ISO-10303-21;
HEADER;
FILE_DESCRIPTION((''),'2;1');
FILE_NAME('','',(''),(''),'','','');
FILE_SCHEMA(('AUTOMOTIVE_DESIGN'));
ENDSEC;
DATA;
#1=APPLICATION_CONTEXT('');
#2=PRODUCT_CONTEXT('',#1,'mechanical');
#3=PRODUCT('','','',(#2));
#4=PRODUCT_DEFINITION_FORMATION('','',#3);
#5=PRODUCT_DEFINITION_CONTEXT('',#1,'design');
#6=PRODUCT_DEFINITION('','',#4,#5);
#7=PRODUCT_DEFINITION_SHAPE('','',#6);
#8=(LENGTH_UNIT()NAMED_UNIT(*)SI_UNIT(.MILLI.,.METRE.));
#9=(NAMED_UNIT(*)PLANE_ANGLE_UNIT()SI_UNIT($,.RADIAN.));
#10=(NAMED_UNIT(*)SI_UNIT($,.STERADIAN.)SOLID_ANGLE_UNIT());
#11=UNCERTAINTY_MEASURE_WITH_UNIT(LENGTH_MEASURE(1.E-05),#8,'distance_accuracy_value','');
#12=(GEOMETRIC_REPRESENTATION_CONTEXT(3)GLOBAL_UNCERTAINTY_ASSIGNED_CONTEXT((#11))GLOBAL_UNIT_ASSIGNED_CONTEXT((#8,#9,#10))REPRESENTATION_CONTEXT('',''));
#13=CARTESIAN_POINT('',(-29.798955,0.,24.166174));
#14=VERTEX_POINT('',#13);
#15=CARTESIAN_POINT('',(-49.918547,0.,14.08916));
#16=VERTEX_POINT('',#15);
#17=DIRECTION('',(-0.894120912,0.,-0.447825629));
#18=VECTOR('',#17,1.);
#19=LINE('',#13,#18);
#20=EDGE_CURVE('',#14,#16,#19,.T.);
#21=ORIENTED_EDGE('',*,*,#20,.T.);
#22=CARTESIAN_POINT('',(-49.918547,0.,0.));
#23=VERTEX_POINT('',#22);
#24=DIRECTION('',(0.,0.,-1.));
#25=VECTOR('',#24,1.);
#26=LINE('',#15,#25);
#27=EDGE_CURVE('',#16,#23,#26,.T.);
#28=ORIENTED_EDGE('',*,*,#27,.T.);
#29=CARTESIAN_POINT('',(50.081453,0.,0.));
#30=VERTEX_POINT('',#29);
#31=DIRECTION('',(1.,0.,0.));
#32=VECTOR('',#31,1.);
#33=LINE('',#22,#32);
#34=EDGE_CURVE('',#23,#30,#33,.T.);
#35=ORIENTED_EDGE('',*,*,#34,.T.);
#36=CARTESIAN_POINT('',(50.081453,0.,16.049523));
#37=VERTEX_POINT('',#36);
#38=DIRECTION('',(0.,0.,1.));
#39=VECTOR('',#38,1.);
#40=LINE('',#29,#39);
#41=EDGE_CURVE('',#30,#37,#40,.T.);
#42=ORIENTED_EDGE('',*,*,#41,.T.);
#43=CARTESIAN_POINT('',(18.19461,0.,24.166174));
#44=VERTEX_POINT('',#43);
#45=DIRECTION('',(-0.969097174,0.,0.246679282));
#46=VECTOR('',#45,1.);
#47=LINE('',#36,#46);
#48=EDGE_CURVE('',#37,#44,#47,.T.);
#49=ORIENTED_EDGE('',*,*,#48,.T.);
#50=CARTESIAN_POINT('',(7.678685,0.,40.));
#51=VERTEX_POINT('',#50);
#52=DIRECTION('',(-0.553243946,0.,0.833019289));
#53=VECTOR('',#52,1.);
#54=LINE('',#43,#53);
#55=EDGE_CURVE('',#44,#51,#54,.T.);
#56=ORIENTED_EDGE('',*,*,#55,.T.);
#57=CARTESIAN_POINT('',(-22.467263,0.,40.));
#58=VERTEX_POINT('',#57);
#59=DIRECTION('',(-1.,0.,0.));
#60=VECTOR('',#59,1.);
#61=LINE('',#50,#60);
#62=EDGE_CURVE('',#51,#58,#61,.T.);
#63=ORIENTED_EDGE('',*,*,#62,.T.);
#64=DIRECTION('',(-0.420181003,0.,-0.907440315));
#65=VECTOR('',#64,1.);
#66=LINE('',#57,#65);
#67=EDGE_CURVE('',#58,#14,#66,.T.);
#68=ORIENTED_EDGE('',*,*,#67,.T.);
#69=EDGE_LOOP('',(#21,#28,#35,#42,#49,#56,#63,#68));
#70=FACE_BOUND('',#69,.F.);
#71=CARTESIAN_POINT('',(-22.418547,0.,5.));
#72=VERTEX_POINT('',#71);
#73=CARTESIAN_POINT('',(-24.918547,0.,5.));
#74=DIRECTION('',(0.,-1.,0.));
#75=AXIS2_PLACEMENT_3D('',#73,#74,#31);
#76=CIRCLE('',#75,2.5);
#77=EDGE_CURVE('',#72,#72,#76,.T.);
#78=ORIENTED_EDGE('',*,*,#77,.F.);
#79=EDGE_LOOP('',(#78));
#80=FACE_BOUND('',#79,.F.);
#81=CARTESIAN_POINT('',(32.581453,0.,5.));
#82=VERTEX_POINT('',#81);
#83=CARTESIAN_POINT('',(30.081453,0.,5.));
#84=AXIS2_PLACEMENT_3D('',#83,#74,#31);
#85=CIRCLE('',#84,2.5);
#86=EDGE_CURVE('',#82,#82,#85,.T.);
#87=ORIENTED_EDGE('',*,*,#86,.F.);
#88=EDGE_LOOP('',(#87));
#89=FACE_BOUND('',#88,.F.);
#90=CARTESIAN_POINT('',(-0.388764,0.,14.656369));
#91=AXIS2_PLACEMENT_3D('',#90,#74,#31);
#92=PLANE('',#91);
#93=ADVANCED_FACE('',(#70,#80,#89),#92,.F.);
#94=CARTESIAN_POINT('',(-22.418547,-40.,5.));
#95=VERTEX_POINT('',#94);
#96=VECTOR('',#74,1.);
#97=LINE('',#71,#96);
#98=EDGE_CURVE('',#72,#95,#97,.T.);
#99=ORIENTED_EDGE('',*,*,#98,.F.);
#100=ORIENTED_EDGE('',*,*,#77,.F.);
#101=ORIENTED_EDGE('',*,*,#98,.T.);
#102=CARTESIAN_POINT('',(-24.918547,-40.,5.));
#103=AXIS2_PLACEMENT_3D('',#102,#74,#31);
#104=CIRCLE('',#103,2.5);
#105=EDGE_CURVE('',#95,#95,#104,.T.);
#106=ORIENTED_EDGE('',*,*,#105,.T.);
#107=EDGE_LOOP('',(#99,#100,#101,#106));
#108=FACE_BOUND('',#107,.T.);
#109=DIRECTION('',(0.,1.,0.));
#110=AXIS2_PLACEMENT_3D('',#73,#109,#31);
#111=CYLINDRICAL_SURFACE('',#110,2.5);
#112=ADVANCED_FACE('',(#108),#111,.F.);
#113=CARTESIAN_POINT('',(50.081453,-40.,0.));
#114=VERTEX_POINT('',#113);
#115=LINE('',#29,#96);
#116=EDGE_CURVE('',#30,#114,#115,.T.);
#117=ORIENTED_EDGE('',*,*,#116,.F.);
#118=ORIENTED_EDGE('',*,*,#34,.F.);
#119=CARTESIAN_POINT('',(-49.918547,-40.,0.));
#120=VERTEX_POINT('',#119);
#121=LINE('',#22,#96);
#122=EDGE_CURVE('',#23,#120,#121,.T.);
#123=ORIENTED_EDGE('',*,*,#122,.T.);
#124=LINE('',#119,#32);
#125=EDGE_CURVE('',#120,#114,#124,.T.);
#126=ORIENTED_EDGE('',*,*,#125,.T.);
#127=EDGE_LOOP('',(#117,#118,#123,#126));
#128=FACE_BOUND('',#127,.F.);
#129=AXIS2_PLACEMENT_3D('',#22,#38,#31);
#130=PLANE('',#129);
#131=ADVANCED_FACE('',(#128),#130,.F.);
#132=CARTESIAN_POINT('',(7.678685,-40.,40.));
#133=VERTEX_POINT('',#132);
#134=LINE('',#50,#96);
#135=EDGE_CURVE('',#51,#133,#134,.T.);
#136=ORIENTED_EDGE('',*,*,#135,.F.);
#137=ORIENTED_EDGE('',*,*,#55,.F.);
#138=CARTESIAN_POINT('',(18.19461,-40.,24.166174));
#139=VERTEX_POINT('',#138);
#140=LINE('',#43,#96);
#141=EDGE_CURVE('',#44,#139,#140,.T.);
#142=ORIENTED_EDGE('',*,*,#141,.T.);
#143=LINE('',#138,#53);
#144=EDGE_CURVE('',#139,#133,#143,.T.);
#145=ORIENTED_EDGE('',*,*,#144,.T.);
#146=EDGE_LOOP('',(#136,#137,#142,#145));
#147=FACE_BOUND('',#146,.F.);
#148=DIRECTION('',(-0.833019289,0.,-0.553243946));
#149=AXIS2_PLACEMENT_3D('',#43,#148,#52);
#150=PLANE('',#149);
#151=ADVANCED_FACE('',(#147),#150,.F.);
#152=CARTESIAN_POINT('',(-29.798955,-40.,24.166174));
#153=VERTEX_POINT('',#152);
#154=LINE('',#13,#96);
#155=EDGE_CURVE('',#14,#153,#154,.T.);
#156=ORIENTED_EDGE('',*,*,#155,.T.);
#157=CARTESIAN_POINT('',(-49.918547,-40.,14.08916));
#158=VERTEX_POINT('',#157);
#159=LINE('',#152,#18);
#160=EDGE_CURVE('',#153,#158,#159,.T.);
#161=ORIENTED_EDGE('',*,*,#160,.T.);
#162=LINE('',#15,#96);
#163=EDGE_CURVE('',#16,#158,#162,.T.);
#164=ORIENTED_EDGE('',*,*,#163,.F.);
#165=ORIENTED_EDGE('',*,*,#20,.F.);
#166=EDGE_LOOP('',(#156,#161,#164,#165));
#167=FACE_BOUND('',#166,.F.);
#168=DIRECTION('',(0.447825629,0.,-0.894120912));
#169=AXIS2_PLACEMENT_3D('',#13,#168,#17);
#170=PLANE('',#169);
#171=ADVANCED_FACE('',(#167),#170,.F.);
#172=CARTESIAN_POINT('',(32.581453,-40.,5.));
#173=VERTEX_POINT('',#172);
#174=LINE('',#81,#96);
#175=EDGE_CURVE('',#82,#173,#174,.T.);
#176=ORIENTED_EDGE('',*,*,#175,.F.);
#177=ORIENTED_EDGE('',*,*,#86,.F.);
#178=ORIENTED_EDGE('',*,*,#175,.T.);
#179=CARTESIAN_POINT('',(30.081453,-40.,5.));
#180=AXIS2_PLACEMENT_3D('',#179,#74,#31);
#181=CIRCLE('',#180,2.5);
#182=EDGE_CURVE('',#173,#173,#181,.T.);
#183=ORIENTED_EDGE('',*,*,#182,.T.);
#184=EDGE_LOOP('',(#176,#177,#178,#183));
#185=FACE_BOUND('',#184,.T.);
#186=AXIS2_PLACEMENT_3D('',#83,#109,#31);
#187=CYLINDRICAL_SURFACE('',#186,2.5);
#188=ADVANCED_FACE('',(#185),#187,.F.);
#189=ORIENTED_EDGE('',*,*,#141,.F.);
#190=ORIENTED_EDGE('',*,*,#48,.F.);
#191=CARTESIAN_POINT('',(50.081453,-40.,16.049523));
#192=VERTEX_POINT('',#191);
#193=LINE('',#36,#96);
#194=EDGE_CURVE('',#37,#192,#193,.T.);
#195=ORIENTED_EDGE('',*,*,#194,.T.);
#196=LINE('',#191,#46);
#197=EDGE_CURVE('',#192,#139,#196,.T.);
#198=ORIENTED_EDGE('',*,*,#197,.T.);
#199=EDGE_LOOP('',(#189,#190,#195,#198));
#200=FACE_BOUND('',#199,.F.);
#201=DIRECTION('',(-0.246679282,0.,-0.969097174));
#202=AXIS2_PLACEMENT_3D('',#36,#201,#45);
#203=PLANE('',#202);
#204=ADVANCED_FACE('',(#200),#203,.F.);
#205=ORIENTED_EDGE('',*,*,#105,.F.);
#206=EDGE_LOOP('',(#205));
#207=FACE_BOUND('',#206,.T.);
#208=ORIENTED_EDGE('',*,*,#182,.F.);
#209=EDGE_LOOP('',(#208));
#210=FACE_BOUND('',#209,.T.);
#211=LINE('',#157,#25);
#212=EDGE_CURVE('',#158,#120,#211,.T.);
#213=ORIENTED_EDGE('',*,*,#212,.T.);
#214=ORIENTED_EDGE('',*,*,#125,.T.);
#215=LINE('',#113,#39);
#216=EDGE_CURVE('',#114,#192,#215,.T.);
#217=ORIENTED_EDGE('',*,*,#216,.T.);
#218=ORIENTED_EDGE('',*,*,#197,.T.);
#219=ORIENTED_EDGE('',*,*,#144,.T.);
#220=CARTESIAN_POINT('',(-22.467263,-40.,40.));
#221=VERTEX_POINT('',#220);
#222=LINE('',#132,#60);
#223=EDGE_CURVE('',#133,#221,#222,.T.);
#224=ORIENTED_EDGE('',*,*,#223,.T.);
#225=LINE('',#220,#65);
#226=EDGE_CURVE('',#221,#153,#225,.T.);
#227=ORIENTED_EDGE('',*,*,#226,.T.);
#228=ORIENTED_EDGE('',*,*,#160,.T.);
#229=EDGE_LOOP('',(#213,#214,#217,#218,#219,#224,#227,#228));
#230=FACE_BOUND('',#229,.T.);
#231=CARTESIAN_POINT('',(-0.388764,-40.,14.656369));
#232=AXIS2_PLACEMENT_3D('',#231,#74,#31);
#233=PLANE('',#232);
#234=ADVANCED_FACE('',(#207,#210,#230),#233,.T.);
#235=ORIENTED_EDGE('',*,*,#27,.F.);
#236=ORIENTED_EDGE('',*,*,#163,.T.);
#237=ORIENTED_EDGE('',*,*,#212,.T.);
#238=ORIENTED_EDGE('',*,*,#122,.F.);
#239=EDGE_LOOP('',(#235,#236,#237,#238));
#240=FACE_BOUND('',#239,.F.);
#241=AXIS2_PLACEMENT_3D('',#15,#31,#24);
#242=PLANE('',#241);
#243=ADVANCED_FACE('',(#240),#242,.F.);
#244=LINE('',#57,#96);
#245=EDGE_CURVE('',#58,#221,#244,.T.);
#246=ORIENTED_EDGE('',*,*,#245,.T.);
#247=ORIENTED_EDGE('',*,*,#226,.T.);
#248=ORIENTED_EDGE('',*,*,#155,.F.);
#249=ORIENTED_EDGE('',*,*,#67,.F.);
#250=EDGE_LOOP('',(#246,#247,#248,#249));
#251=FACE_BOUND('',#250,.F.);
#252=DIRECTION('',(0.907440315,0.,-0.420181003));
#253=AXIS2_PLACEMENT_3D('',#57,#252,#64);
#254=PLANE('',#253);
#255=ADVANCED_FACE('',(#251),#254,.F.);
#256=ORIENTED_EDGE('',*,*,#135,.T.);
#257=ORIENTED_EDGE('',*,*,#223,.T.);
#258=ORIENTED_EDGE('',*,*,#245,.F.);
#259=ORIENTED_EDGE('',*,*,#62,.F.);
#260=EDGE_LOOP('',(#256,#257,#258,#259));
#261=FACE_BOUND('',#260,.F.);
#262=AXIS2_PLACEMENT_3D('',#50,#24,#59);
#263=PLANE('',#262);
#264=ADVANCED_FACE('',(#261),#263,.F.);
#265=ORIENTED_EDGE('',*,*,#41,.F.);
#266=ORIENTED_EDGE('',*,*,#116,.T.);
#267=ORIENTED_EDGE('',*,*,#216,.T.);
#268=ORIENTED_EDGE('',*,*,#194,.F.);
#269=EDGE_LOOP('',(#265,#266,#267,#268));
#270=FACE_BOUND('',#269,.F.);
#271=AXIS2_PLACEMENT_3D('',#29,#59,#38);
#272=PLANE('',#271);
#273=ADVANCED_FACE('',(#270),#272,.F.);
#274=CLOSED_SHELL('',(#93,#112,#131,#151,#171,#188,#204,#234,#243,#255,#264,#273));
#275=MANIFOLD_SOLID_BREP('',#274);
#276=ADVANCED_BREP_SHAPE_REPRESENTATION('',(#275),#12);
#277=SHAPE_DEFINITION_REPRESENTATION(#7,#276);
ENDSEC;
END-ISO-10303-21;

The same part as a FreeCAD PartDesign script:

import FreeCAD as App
import Part
import Sketcher
Q = App.Units.Quantity


def add_polygon(sketch, points):
    """Adds a closed chain of lines whose ends are joined by coincident constraints."""
    first, n = sketch.GeometryCount, len(points)
    for a, b in zip(points, points[1:] + points[:1]):
        sketch.addGeometry(Part.LineSegment(App.Vector(*a, 0), App.Vector(*b, 0)), False)
    for i in range(n):
        sketch.addConstraint(Sketcher.Constraint("Coincident", first + i, 2, first + (i + 1) % n, 1))

doc = App.newDocument("Part")
body = doc.addObject("PartDesign::Body", "Body")

# Sketch on XZ plane
sketch1 = doc.addObject("Sketcher::SketchObject", "Sketch")
body.addObject(sketch1)
sketch1.AttachmentSupport = (doc.XZ_Plane, [""])
sketch1.MapMode = "FlatFace"
add_polygon(sketch1, [(-49.9, 14.1), (-49.9, 0), (50.1, 0), (50.1, 16), (18.2, 24.2), (7.7, 40), (-22.5, 40), (-29.8, 24.2)])  # lines 0-7
sketch1.addGeometry(Part.Circle(App.Vector(-24.9, 5, 0), App.Vector(0, 0, 1), 2.5), False)  # 8
sketch1.addGeometry(Part.Circle(App.Vector(30.1, 5, 0), App.Vector(0, 0, 1), 2.5), False)  # 9
sketch1.addConstraint([
    Sketcher.Constraint("Vertical", 0),
    Sketcher.Constraint("Horizontal", 1),
    Sketcher.Constraint("Vertical", 2),
    Sketcher.Constraint("Horizontal", 5),
    Sketcher.Constraint("Equal", 8, 9),
    Sketcher.Constraint("PointOnObject", 0, 2, -1),
    Sketcher.Constraint("Horizontal", 8, 3, 9, 3),
    Sketcher.Constraint("Horizontal", 3, 2, 6, 2),
    Sketcher.Constraint("Diameter", 8, Q("5 mm")),
    Sketcher.Constraint("DistanceX", 1, 1, 1, 2, Q("100 mm")),
    Sketcher.Constraint("DistanceY", -1, 1, 8, 3, Q("5 mm")),
    Sketcher.Constraint("DistanceY", -1, 1, 4, 2, Q("40 mm")),
    Sketcher.Constraint("DistanceX", 8, 3, 9, 3, Q("55 mm")),
    Sketcher.Constraint("DistanceX", 0, 2, 8, 3, Q("25 mm")),
    Sketcher.Constraint("DistanceY", 0, 2, 0, 1, Q("14.08916 mm")),
    Sketcher.Constraint("Distance", 3, Q("32.903659 mm")),
    Sketcher.Constraint("Distance", 6, Q("17.44889 mm")),
    Sketcher.Constraint("DistanceX", 5, 2, 5, 1, Q("30.145948 mm")),
    Sketcher.Constraint("DistanceY", 2, 1, 2, 2, Q("16.049523 mm")),
    Sketcher.Constraint("DistanceX", -1, 1, 3, 2, Q("18.19461 mm")),
    Sketcher.Constraint("DistanceY", 2, 2, 3, 2, Q("8.116651 mm")),
    Sketcher.Constraint("DistanceX", 4, 2, 9, 3, Q("22.402768 mm")),
])
pad1 = doc.addObject("PartDesign::Pad", "Pad")
body.addObject(pad1)
pad1.Profile = sketch1
pad1.Length = 40

doc.recompute()
